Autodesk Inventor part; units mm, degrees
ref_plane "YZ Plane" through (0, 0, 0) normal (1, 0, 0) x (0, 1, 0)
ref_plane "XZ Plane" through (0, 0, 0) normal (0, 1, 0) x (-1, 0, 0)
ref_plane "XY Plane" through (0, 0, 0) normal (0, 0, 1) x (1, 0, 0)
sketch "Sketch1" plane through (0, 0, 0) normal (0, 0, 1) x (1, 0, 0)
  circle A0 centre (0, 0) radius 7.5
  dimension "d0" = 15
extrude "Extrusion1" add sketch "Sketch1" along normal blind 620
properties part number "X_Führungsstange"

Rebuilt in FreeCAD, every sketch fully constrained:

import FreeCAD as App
import Part
import Sketcher
from FreeCAD import Vector
Q = App.Units.Quantity

doc = App.newDocument("Part")
body = doc.addObject("PartDesign::Body", "Body")

sketch1 = body.newObject("Sketcher::SketchObject", "Sketch")
sketch1.AttachmentSupport = (doc.getObject("XY_Plane"), [""])
sketch1.MapMode = "FlatFace"
sketch1.addGeometry(Part.Circle(Vector(0, 0, 0), Vector(0, 0, 1), 8), False)
sketch1.addConstraint([
    Sketcher.Constraint("Coincident", 0, 3, -1, 1),
    Sketcher.Constraint("Diameter", 0, Q("15 mm")),
])
pad1 = body.newObject("PartDesign::Pad", "Pad")
pad1.Profile = sketch1
pad1.Length = 620

doc.recompute()
